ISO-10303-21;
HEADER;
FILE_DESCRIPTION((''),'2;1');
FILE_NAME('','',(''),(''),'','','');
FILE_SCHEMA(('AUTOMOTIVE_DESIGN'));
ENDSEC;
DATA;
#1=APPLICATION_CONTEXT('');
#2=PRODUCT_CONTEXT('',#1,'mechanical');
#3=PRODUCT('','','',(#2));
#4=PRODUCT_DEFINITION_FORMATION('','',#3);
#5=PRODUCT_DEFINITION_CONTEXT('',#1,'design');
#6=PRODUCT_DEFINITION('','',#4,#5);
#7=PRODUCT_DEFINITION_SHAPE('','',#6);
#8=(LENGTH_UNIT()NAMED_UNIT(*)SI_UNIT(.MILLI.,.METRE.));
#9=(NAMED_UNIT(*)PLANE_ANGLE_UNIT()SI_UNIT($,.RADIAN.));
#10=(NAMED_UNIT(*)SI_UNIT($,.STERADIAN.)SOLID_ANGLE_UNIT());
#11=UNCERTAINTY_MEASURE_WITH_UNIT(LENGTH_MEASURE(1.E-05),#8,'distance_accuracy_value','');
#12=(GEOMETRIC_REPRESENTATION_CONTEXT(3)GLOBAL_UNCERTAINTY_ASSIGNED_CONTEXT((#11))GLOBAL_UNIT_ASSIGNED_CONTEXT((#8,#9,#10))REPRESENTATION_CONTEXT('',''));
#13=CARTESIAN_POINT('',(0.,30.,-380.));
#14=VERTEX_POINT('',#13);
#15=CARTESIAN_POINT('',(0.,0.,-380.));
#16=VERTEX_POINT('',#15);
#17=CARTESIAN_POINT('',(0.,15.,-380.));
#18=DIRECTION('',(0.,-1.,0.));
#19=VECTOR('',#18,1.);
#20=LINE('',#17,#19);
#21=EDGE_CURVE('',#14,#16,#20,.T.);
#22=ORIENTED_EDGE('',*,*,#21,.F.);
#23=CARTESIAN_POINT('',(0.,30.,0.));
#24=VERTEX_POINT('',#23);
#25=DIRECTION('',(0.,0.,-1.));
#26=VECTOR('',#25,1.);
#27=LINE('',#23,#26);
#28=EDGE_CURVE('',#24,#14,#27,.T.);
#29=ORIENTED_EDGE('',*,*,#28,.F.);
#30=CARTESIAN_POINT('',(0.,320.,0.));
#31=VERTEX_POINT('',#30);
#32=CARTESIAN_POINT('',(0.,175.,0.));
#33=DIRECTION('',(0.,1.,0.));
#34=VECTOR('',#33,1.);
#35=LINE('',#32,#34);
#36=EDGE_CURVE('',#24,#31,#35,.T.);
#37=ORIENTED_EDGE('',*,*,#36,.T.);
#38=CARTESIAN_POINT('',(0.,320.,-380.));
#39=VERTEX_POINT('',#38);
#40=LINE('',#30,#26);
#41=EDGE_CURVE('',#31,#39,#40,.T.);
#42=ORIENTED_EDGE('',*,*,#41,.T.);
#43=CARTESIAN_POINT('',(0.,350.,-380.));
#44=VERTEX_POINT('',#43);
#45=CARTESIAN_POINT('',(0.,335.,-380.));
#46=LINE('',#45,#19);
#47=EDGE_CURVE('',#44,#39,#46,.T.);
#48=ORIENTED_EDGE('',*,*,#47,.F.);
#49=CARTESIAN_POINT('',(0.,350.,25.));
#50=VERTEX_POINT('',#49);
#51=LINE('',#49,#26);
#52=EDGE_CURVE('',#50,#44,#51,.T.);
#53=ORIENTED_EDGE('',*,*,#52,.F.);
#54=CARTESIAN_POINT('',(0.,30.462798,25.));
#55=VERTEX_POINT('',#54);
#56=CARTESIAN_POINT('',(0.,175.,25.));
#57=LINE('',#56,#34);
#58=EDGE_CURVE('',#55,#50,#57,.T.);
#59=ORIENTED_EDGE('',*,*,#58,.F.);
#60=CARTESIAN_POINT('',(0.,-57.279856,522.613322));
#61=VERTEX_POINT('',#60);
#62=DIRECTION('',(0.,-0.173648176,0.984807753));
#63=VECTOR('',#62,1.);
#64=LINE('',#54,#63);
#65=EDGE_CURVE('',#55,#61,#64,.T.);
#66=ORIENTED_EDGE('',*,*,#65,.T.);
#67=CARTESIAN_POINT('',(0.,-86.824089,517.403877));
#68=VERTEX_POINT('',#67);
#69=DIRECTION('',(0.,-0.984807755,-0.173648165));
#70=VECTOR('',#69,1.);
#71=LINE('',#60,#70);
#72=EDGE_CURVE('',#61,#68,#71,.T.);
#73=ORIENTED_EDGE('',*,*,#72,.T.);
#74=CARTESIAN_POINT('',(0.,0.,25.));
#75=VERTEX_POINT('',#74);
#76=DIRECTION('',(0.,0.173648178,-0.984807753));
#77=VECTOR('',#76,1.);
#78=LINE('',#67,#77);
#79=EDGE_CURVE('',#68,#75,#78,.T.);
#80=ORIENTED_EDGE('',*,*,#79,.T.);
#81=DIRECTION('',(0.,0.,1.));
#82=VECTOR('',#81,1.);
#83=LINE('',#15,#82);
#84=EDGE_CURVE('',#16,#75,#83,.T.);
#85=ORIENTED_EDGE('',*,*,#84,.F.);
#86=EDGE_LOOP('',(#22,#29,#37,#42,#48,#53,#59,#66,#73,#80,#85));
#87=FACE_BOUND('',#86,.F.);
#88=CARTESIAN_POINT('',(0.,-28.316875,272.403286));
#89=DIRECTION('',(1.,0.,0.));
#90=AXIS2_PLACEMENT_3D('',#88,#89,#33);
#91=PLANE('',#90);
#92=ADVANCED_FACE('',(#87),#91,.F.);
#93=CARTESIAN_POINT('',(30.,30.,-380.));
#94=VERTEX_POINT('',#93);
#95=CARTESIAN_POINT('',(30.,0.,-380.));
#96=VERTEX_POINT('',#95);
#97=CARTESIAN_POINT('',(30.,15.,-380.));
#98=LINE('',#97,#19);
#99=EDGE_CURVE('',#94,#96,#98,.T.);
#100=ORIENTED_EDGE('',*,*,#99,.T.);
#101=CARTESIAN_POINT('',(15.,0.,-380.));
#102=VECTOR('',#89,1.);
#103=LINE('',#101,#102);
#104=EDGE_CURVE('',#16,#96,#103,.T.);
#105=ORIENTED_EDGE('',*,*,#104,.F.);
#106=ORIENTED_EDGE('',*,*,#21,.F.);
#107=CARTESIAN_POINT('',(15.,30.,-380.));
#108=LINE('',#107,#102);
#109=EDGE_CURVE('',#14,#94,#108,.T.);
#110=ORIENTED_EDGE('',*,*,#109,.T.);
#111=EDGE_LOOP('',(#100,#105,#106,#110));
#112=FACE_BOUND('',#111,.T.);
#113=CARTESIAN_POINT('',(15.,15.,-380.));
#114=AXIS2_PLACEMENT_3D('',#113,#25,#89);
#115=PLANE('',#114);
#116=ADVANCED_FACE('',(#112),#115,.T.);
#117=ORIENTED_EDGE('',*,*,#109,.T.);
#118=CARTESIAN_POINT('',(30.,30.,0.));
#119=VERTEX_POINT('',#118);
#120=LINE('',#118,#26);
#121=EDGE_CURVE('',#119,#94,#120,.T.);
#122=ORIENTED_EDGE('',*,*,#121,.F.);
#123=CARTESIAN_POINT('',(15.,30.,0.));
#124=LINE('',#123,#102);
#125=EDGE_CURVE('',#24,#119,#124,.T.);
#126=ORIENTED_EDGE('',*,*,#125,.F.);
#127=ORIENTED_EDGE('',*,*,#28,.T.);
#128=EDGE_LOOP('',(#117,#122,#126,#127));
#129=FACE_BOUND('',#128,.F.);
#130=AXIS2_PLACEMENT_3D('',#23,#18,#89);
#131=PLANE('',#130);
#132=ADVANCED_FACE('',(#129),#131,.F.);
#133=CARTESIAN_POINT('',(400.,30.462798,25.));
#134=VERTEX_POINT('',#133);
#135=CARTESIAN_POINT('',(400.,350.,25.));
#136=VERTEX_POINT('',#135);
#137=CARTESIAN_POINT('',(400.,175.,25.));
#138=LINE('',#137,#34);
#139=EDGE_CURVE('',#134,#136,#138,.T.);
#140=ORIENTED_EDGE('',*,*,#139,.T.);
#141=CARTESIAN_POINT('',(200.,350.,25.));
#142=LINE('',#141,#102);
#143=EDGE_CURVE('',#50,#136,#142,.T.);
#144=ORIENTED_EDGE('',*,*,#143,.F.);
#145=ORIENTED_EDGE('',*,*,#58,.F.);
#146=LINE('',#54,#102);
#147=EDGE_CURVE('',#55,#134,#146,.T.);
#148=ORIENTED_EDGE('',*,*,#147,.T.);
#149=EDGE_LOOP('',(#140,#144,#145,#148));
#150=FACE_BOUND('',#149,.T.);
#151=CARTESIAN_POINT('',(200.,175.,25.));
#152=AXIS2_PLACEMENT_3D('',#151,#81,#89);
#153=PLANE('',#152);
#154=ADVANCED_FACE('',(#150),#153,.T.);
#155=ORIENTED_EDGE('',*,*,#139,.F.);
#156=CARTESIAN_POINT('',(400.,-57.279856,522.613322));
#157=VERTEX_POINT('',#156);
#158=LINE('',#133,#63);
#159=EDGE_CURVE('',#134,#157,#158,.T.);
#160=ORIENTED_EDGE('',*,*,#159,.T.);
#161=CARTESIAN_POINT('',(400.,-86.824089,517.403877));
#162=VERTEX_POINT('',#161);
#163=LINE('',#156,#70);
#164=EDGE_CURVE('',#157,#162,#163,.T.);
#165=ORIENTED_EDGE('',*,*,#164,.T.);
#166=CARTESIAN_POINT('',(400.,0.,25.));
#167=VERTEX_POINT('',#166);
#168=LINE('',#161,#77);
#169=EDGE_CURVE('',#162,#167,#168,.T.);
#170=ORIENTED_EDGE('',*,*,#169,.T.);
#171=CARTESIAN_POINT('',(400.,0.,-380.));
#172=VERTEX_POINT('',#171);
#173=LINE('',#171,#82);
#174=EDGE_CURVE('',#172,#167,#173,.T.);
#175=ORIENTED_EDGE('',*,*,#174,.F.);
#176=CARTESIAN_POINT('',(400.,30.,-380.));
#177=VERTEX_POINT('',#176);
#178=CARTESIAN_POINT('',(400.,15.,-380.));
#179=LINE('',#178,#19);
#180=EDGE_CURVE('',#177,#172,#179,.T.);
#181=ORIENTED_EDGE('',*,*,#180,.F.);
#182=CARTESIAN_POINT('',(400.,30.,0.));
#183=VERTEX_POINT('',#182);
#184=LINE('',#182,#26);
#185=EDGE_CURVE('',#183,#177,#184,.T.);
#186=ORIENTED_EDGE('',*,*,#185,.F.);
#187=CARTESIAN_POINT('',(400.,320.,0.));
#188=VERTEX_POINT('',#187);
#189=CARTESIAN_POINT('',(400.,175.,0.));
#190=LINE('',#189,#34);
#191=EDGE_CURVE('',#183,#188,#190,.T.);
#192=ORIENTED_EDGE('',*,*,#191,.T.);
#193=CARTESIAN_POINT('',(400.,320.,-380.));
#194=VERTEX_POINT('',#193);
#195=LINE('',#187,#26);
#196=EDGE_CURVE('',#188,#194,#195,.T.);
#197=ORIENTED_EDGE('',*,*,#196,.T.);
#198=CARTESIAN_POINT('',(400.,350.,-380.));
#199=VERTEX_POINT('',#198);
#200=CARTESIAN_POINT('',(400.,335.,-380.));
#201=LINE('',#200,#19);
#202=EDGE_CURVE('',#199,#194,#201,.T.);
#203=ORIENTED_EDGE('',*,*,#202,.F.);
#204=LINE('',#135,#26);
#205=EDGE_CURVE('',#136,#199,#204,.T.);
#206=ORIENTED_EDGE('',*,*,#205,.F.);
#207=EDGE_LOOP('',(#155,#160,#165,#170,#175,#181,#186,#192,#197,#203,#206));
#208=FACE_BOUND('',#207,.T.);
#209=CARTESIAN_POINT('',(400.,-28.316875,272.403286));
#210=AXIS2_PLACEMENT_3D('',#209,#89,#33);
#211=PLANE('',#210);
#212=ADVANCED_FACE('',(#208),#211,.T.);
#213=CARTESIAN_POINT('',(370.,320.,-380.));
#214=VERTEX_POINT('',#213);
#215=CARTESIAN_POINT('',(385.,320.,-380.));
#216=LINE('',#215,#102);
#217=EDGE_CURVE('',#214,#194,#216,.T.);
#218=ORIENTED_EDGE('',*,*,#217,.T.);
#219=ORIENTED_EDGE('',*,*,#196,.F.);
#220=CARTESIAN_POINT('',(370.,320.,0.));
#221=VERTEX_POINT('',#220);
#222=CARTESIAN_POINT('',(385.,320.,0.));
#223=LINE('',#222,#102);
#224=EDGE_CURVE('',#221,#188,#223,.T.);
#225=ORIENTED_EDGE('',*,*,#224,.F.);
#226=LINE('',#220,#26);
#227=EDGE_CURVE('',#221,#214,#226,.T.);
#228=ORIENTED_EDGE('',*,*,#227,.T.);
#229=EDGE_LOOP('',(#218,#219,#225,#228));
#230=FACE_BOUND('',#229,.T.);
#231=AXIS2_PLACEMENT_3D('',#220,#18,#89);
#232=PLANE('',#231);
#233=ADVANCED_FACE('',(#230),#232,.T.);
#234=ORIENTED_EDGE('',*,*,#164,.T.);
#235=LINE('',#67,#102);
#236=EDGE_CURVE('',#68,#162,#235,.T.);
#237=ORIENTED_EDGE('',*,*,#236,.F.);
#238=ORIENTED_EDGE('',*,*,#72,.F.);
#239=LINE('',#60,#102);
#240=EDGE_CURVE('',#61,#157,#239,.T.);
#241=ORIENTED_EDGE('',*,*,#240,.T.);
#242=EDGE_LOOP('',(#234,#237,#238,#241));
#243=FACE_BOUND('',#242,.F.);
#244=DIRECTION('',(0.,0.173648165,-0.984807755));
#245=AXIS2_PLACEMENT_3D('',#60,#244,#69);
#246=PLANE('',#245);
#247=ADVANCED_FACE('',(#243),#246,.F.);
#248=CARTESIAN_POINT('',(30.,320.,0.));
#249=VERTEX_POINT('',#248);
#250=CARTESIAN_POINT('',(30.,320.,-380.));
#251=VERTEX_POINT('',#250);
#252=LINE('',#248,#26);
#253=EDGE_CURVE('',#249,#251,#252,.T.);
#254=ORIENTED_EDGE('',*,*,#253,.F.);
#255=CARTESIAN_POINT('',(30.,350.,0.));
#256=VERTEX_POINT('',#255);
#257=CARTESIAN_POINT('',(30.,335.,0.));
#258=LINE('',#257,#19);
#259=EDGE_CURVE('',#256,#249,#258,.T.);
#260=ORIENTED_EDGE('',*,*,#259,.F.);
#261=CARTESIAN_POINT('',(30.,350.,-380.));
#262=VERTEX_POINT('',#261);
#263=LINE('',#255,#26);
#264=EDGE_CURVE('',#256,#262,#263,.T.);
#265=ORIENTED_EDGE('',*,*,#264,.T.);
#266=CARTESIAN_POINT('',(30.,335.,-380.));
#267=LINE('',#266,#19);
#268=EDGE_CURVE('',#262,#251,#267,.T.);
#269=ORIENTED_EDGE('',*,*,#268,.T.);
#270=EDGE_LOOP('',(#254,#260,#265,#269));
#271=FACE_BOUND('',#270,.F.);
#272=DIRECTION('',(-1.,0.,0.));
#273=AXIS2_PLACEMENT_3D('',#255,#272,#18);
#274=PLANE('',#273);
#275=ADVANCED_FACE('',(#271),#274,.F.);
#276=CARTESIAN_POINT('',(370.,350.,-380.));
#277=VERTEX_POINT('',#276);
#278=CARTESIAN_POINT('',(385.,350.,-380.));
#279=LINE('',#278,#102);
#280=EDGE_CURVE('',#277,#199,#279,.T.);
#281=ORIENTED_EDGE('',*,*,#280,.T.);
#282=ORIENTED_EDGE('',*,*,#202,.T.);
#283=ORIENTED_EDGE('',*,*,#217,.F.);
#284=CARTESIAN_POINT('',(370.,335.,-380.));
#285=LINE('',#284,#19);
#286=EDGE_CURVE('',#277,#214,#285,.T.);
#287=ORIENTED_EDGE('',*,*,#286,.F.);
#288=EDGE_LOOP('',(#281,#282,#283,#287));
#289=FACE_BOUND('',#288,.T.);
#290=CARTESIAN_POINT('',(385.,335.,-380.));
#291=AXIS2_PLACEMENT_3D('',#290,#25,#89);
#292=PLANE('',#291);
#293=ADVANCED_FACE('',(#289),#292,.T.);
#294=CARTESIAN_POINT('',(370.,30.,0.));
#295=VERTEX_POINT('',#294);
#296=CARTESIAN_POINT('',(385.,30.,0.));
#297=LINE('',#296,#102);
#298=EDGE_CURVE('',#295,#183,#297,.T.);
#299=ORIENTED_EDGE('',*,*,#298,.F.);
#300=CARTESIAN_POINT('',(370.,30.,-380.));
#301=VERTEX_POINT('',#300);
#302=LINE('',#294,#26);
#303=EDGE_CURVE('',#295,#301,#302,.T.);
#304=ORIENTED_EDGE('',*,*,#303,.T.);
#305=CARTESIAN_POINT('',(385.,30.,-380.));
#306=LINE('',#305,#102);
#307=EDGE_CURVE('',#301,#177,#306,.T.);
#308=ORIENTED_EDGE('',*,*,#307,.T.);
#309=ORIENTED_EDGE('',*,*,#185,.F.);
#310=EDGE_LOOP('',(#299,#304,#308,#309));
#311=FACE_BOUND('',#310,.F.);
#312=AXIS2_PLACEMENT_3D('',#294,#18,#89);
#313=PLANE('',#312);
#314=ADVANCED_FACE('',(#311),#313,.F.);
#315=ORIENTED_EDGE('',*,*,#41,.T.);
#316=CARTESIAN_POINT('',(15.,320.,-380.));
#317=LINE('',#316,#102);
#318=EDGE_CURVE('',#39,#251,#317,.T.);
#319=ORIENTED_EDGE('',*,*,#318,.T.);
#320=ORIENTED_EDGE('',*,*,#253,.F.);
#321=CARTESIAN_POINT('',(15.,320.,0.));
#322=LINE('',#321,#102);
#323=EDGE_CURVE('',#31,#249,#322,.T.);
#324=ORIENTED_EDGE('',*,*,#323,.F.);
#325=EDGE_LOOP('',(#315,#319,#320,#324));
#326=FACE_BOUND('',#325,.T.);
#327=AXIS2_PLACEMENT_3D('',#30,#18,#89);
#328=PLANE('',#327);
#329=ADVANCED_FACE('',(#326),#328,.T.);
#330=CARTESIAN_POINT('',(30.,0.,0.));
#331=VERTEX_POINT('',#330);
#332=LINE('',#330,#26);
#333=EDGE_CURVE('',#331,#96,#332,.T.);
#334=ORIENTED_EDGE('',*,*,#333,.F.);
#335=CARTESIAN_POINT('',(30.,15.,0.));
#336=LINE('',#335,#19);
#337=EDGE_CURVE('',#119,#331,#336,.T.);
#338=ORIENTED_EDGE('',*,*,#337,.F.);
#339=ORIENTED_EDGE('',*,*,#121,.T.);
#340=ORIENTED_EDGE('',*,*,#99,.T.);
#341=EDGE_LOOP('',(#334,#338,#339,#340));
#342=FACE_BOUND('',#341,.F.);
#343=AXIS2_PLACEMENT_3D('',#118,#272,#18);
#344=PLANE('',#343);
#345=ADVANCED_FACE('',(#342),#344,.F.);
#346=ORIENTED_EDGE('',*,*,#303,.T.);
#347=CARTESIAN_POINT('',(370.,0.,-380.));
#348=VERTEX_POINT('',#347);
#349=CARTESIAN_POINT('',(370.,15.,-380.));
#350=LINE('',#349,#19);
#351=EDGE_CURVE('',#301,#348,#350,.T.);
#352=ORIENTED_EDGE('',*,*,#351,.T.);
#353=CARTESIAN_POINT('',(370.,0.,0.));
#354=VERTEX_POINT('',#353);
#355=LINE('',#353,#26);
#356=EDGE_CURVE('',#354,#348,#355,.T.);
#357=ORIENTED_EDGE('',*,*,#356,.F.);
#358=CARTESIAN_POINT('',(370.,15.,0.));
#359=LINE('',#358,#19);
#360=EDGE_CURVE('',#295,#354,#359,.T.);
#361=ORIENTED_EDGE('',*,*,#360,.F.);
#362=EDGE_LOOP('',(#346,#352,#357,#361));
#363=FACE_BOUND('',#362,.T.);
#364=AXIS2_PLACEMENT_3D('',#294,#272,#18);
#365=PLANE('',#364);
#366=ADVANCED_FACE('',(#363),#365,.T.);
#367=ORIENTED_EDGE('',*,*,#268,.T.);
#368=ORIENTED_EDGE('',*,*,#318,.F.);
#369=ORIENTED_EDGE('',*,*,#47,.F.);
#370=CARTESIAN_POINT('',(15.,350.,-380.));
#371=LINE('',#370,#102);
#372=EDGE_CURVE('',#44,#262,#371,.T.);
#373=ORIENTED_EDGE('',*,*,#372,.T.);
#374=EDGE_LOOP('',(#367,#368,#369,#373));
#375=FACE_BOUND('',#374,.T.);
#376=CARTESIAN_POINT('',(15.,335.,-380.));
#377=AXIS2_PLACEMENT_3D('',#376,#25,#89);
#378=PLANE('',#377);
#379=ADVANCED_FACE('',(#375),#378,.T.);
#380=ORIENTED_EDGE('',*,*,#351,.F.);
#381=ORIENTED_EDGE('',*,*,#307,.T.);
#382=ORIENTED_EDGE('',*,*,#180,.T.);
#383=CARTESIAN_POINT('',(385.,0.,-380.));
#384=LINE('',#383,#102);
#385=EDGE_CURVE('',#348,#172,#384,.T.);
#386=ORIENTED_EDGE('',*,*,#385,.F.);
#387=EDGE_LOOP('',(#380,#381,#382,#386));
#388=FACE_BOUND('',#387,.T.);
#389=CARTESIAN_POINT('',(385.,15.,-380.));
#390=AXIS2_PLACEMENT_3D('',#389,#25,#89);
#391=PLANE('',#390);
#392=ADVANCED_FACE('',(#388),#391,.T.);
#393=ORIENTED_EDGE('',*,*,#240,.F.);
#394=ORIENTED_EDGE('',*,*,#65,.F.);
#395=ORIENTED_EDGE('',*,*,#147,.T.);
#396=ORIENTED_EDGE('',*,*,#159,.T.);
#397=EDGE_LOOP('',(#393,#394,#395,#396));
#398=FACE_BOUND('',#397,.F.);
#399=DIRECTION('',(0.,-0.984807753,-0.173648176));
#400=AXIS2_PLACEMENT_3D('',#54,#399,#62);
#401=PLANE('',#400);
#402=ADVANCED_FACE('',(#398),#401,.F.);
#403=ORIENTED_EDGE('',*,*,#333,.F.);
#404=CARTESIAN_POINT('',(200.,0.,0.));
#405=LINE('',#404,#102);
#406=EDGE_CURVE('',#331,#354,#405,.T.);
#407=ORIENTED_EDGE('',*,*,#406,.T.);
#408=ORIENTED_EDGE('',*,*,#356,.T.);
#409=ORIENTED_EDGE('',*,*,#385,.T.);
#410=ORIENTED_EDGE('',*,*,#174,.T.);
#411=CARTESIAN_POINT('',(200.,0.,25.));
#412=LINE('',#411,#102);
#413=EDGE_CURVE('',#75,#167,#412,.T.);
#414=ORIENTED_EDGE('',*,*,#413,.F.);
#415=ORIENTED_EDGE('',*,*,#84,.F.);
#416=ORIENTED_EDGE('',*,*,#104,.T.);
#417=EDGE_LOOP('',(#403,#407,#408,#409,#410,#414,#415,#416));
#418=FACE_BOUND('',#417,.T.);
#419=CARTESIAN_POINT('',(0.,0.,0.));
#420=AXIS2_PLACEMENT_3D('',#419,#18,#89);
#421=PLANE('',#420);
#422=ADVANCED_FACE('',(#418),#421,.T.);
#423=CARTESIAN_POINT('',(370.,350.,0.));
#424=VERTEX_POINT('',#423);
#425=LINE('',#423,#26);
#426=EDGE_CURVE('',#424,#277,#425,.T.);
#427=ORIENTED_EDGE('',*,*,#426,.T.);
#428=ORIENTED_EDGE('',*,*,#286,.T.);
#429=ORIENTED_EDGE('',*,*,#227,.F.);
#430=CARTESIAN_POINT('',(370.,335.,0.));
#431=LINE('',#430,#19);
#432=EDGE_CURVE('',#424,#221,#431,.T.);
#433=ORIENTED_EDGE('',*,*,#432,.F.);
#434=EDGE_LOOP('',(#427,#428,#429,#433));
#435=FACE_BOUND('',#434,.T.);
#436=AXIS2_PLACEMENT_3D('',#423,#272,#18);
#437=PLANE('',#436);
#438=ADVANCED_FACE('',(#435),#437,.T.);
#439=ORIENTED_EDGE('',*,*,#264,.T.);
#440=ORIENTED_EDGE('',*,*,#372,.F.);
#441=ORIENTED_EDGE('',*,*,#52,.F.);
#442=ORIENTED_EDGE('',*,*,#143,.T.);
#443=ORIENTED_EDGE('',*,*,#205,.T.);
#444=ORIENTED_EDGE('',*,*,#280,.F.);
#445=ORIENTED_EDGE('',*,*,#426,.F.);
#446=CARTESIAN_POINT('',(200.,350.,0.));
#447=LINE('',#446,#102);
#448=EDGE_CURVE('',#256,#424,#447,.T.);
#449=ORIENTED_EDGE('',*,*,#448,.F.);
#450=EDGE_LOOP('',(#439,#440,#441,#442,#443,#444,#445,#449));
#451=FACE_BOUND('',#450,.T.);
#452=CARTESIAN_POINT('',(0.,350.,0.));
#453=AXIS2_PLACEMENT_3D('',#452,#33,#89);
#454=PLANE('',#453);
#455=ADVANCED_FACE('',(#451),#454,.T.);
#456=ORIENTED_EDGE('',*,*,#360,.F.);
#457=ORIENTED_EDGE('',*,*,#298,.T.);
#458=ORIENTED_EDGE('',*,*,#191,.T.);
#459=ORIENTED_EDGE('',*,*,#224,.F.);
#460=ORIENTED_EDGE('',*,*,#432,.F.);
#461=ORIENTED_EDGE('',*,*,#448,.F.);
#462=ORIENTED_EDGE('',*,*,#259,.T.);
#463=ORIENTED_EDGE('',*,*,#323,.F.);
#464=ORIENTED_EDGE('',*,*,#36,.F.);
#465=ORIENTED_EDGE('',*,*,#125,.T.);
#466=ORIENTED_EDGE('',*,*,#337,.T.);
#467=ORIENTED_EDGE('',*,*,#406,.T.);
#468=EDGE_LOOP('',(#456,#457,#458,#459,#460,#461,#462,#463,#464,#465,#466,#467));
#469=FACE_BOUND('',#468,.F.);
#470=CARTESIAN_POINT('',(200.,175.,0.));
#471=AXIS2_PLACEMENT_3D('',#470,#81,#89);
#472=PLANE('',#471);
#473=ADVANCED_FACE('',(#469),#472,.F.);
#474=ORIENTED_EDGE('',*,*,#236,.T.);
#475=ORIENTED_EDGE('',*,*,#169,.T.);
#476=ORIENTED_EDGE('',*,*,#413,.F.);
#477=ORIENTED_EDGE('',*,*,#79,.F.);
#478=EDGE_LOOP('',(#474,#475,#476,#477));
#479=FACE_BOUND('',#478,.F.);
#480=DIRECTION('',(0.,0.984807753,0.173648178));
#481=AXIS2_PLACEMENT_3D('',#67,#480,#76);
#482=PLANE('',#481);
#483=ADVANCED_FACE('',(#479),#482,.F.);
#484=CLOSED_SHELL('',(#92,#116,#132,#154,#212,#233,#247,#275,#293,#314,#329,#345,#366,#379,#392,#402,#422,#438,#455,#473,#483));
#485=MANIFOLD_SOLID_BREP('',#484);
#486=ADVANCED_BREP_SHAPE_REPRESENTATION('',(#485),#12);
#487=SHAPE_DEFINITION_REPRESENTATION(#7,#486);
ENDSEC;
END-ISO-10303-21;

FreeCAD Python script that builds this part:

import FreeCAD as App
import Part
import Sketcher

V = App.Vector
Q = App.Units.Quantity


def add_polygon(sketch, points):
    """Adds a closed chain of lines whose ends are joined by coincident constraints."""
    first, n = sketch.GeometryCount, len(points)
    for a, b in zip(points, points[1:] + points[:1]):
        sketch.addGeometry(Part.LineSegment(App.Vector(*a, 0), App.Vector(*b, 0)), False)
    for i in range(n):
        sketch.addConstraint(Sketcher.Constraint("Coincident", first + i, 2, first + (i + 1) % n, 1))

doc = App.newDocument("Part")
body = doc.addObject("PartDesign::Body", "Body")

# Sketch on XY plane
sketch1 = body.newObject("Sketcher::SketchObject", "Sketch")
sketch1.AttachmentSupport = (doc.getObject("XY_Plane"), [""])
sketch1.MapMode = "FlatFace"
add_polygon(sketch1, [(0, 350), (0, 0), (400, 0), (400, 350)])  # lines 0-3
sketch1.addConstraint(Sketcher.Constraint("Vertical", 0))
sketch1.addConstraint(Sketcher.Constraint("Horizontal", 1))
sketch1.addConstraint(Sketcher.Constraint("Vertical", 2))
sketch1.addConstraint(Sketcher.Constraint("Horizontal", 3))
sketch1.addConstraint(Sketcher.Constraint("Coincident", 0, 2, -1, 1))
sketch1.addConstraint(Sketcher.Constraint("DistanceX", 1, 1, 1, 2, Q("400 mm")))
sketch1.addConstraint(Sketcher.Constraint("DistanceY", 0, 2, 0, 1, Q("350 mm")))
pad1 = body.newObject("PartDesign::Pad", "Pad")
pad1.Profile = sketch1
pad1.Length = 25

# Sketch on XY plane
sketch2 = body.newObject("Sketcher::SketchObject", "Sketch001")
sketch2.AttachmentSupport = (doc.getObject("XY_Plane"), [""])
sketch2.MapMode = "FlatFace"
add_polygon(sketch2, [(0, 0), (0, 30), (30, 30), (30, 0)])  # lines 0-3
add_polygon(sketch2, [(370, 0), (370, 30), (400, 30), (400, 0)])  # lines 4-7
add_polygon(sketch2, [(0, 320), (0, 350), (30, 350), (30, 320)])  # lines 8-11
add_polygon(sketch2, [(370, 320), (370, 350), (400, 350), (400, 320)])  # lines 12-15
sketch2.addConstraint(Sketcher.Constraint("Vertical", 0))
sketch2.addConstraint(Sketcher.Constraint("Horizontal", 1))
sketch2.addConstraint(Sketcher.Constraint("Vertical", 2))
sketch2.addConstraint(Sketcher.Constraint("Horizontal", 3))
sketch2.addConstraint(Sketcher.Constraint("Vertical", 4))
sketch2.addConstraint(Sketcher.Constraint("Horizontal", 5))
sketch2.addConstraint(Sketcher.Constraint("Vertical", 6))
sketch2.addConstraint(Sketcher.Constraint("Horizontal", 7))
sketch2.addConstraint(Sketcher.Constraint("Vertical", 8))
sketch2.addConstraint(Sketcher.Constraint("Horizontal", 9))
sketch2.addConstraint(Sketcher.Constraint("Vertical", 10))
sketch2.addConstraint(Sketcher.Constraint("Horizontal", 11))
sketch2.addConstraint(Sketcher.Constraint("Vertical", 12))
sketch2.addConstraint(Sketcher.Constraint("Horizontal", 13))
sketch2.addConstraint(Sketcher.Constraint("Vertical", 14))
sketch2.addConstraint(Sketcher.Constraint("Horizontal", 15))
sketch2.addConstraint(Sketcher.Constraint("Coincident", 3, 2, -1, 1))
sketch2.addConstraint(Sketcher.Constraint("PointOnObject", 6, 2, -1))
sketch2.addConstraint(Sketcher.Constraint("PointOnObject", 8, 2, -2))
sketch2.addConstraint(Sketcher.Constraint("Horizontal", 1, 2, 4, 2))
sketch2.addConstraint(Sketcher.Constraint("Horizontal", 9, 2, 12, 2))
sketch2.addConstraint(Sketcher.Constraint("Horizontal", 11, 2, 14, 2))
sketch2.addConstraint(Sketcher.Constraint("Vertical", 2, 2, 9, 2))
sketch2.addConstraint(Sketcher.Constraint("Vertical", 7, 2, 12, 2))
sketch2.addConstraint(Sketcher.Constraint("Vertical", 6, 2, 13, 2))
sketch2.addConstraint(Sketcher.Constraint("Equal", 3, 5))
sketch2.addConstraint(Sketcher.Constraint("Equal", 15, 0))
sketch2.addConstraint(Sketcher.Constraint("Equal", 6, 8))
sketch2.addConstraint(Sketcher.Constraint("DistanceX", 1, 1, 1, 2, Q("30 mm")))
sketch2.addConstraint(Sketcher.Constraint("DistanceX", -1, 1, 4, 2, Q("370 mm")))
sketch2.addConstraint(Sketcher.Constraint("DistanceY", -1, 1, 8, 2, Q("350 mm")))
pad2 = body.newObject("PartDesign::Pad", "Pad001")
pad2.Profile = sketch2
pad2.Length = 380
pad2.Reversed = True

# Sketch on YZ plane
sketch3 = body.newObject("Sketcher::SketchObject", "Sketch002")
sketch3.AttachmentSupport = (doc.getObject("YZ_Plane"), [""])
sketch3.MapMode = "FlatFace"
add_polygon(sketch3, [(-86.824089, 517.403877), (0, 25), (30.462798, 25), (-57.279856, 522.613322)])  # lines 0-3
sketch3.addConstraint(Sketcher.Constraint("Horizontal", 1))
sketch3.addConstraint(Sketcher.Constraint("PointOnObject", 0, 2, -2))
sketch3.addConstraint(Sketcher.Constraint("Parallel", 0, 2))
sketch3.addConstraint(Sketcher.Constraint("Perpendicular", 2, 3))
sketch3.addConstraint(Sketcher.Constraint("Angle", 0, Q("-80 deg")))
sketch3.addConstraint(Sketcher.Constraint("Distance", 0, Q("500.000001 mm")))
sketch3.addConstraint(Sketcher.Constraint("Distance", 3, Q("30 mm")))
sketch3.addConstraint(Sketcher.Constraint("DistanceY", -1, 1, 0, 2, Q("25 mm")))
pad3 = body.newObject("PartDesign::Pad", "Pad002")
pad3.Profile = sketch3
pad3.Length = 400

doc.recompute()
